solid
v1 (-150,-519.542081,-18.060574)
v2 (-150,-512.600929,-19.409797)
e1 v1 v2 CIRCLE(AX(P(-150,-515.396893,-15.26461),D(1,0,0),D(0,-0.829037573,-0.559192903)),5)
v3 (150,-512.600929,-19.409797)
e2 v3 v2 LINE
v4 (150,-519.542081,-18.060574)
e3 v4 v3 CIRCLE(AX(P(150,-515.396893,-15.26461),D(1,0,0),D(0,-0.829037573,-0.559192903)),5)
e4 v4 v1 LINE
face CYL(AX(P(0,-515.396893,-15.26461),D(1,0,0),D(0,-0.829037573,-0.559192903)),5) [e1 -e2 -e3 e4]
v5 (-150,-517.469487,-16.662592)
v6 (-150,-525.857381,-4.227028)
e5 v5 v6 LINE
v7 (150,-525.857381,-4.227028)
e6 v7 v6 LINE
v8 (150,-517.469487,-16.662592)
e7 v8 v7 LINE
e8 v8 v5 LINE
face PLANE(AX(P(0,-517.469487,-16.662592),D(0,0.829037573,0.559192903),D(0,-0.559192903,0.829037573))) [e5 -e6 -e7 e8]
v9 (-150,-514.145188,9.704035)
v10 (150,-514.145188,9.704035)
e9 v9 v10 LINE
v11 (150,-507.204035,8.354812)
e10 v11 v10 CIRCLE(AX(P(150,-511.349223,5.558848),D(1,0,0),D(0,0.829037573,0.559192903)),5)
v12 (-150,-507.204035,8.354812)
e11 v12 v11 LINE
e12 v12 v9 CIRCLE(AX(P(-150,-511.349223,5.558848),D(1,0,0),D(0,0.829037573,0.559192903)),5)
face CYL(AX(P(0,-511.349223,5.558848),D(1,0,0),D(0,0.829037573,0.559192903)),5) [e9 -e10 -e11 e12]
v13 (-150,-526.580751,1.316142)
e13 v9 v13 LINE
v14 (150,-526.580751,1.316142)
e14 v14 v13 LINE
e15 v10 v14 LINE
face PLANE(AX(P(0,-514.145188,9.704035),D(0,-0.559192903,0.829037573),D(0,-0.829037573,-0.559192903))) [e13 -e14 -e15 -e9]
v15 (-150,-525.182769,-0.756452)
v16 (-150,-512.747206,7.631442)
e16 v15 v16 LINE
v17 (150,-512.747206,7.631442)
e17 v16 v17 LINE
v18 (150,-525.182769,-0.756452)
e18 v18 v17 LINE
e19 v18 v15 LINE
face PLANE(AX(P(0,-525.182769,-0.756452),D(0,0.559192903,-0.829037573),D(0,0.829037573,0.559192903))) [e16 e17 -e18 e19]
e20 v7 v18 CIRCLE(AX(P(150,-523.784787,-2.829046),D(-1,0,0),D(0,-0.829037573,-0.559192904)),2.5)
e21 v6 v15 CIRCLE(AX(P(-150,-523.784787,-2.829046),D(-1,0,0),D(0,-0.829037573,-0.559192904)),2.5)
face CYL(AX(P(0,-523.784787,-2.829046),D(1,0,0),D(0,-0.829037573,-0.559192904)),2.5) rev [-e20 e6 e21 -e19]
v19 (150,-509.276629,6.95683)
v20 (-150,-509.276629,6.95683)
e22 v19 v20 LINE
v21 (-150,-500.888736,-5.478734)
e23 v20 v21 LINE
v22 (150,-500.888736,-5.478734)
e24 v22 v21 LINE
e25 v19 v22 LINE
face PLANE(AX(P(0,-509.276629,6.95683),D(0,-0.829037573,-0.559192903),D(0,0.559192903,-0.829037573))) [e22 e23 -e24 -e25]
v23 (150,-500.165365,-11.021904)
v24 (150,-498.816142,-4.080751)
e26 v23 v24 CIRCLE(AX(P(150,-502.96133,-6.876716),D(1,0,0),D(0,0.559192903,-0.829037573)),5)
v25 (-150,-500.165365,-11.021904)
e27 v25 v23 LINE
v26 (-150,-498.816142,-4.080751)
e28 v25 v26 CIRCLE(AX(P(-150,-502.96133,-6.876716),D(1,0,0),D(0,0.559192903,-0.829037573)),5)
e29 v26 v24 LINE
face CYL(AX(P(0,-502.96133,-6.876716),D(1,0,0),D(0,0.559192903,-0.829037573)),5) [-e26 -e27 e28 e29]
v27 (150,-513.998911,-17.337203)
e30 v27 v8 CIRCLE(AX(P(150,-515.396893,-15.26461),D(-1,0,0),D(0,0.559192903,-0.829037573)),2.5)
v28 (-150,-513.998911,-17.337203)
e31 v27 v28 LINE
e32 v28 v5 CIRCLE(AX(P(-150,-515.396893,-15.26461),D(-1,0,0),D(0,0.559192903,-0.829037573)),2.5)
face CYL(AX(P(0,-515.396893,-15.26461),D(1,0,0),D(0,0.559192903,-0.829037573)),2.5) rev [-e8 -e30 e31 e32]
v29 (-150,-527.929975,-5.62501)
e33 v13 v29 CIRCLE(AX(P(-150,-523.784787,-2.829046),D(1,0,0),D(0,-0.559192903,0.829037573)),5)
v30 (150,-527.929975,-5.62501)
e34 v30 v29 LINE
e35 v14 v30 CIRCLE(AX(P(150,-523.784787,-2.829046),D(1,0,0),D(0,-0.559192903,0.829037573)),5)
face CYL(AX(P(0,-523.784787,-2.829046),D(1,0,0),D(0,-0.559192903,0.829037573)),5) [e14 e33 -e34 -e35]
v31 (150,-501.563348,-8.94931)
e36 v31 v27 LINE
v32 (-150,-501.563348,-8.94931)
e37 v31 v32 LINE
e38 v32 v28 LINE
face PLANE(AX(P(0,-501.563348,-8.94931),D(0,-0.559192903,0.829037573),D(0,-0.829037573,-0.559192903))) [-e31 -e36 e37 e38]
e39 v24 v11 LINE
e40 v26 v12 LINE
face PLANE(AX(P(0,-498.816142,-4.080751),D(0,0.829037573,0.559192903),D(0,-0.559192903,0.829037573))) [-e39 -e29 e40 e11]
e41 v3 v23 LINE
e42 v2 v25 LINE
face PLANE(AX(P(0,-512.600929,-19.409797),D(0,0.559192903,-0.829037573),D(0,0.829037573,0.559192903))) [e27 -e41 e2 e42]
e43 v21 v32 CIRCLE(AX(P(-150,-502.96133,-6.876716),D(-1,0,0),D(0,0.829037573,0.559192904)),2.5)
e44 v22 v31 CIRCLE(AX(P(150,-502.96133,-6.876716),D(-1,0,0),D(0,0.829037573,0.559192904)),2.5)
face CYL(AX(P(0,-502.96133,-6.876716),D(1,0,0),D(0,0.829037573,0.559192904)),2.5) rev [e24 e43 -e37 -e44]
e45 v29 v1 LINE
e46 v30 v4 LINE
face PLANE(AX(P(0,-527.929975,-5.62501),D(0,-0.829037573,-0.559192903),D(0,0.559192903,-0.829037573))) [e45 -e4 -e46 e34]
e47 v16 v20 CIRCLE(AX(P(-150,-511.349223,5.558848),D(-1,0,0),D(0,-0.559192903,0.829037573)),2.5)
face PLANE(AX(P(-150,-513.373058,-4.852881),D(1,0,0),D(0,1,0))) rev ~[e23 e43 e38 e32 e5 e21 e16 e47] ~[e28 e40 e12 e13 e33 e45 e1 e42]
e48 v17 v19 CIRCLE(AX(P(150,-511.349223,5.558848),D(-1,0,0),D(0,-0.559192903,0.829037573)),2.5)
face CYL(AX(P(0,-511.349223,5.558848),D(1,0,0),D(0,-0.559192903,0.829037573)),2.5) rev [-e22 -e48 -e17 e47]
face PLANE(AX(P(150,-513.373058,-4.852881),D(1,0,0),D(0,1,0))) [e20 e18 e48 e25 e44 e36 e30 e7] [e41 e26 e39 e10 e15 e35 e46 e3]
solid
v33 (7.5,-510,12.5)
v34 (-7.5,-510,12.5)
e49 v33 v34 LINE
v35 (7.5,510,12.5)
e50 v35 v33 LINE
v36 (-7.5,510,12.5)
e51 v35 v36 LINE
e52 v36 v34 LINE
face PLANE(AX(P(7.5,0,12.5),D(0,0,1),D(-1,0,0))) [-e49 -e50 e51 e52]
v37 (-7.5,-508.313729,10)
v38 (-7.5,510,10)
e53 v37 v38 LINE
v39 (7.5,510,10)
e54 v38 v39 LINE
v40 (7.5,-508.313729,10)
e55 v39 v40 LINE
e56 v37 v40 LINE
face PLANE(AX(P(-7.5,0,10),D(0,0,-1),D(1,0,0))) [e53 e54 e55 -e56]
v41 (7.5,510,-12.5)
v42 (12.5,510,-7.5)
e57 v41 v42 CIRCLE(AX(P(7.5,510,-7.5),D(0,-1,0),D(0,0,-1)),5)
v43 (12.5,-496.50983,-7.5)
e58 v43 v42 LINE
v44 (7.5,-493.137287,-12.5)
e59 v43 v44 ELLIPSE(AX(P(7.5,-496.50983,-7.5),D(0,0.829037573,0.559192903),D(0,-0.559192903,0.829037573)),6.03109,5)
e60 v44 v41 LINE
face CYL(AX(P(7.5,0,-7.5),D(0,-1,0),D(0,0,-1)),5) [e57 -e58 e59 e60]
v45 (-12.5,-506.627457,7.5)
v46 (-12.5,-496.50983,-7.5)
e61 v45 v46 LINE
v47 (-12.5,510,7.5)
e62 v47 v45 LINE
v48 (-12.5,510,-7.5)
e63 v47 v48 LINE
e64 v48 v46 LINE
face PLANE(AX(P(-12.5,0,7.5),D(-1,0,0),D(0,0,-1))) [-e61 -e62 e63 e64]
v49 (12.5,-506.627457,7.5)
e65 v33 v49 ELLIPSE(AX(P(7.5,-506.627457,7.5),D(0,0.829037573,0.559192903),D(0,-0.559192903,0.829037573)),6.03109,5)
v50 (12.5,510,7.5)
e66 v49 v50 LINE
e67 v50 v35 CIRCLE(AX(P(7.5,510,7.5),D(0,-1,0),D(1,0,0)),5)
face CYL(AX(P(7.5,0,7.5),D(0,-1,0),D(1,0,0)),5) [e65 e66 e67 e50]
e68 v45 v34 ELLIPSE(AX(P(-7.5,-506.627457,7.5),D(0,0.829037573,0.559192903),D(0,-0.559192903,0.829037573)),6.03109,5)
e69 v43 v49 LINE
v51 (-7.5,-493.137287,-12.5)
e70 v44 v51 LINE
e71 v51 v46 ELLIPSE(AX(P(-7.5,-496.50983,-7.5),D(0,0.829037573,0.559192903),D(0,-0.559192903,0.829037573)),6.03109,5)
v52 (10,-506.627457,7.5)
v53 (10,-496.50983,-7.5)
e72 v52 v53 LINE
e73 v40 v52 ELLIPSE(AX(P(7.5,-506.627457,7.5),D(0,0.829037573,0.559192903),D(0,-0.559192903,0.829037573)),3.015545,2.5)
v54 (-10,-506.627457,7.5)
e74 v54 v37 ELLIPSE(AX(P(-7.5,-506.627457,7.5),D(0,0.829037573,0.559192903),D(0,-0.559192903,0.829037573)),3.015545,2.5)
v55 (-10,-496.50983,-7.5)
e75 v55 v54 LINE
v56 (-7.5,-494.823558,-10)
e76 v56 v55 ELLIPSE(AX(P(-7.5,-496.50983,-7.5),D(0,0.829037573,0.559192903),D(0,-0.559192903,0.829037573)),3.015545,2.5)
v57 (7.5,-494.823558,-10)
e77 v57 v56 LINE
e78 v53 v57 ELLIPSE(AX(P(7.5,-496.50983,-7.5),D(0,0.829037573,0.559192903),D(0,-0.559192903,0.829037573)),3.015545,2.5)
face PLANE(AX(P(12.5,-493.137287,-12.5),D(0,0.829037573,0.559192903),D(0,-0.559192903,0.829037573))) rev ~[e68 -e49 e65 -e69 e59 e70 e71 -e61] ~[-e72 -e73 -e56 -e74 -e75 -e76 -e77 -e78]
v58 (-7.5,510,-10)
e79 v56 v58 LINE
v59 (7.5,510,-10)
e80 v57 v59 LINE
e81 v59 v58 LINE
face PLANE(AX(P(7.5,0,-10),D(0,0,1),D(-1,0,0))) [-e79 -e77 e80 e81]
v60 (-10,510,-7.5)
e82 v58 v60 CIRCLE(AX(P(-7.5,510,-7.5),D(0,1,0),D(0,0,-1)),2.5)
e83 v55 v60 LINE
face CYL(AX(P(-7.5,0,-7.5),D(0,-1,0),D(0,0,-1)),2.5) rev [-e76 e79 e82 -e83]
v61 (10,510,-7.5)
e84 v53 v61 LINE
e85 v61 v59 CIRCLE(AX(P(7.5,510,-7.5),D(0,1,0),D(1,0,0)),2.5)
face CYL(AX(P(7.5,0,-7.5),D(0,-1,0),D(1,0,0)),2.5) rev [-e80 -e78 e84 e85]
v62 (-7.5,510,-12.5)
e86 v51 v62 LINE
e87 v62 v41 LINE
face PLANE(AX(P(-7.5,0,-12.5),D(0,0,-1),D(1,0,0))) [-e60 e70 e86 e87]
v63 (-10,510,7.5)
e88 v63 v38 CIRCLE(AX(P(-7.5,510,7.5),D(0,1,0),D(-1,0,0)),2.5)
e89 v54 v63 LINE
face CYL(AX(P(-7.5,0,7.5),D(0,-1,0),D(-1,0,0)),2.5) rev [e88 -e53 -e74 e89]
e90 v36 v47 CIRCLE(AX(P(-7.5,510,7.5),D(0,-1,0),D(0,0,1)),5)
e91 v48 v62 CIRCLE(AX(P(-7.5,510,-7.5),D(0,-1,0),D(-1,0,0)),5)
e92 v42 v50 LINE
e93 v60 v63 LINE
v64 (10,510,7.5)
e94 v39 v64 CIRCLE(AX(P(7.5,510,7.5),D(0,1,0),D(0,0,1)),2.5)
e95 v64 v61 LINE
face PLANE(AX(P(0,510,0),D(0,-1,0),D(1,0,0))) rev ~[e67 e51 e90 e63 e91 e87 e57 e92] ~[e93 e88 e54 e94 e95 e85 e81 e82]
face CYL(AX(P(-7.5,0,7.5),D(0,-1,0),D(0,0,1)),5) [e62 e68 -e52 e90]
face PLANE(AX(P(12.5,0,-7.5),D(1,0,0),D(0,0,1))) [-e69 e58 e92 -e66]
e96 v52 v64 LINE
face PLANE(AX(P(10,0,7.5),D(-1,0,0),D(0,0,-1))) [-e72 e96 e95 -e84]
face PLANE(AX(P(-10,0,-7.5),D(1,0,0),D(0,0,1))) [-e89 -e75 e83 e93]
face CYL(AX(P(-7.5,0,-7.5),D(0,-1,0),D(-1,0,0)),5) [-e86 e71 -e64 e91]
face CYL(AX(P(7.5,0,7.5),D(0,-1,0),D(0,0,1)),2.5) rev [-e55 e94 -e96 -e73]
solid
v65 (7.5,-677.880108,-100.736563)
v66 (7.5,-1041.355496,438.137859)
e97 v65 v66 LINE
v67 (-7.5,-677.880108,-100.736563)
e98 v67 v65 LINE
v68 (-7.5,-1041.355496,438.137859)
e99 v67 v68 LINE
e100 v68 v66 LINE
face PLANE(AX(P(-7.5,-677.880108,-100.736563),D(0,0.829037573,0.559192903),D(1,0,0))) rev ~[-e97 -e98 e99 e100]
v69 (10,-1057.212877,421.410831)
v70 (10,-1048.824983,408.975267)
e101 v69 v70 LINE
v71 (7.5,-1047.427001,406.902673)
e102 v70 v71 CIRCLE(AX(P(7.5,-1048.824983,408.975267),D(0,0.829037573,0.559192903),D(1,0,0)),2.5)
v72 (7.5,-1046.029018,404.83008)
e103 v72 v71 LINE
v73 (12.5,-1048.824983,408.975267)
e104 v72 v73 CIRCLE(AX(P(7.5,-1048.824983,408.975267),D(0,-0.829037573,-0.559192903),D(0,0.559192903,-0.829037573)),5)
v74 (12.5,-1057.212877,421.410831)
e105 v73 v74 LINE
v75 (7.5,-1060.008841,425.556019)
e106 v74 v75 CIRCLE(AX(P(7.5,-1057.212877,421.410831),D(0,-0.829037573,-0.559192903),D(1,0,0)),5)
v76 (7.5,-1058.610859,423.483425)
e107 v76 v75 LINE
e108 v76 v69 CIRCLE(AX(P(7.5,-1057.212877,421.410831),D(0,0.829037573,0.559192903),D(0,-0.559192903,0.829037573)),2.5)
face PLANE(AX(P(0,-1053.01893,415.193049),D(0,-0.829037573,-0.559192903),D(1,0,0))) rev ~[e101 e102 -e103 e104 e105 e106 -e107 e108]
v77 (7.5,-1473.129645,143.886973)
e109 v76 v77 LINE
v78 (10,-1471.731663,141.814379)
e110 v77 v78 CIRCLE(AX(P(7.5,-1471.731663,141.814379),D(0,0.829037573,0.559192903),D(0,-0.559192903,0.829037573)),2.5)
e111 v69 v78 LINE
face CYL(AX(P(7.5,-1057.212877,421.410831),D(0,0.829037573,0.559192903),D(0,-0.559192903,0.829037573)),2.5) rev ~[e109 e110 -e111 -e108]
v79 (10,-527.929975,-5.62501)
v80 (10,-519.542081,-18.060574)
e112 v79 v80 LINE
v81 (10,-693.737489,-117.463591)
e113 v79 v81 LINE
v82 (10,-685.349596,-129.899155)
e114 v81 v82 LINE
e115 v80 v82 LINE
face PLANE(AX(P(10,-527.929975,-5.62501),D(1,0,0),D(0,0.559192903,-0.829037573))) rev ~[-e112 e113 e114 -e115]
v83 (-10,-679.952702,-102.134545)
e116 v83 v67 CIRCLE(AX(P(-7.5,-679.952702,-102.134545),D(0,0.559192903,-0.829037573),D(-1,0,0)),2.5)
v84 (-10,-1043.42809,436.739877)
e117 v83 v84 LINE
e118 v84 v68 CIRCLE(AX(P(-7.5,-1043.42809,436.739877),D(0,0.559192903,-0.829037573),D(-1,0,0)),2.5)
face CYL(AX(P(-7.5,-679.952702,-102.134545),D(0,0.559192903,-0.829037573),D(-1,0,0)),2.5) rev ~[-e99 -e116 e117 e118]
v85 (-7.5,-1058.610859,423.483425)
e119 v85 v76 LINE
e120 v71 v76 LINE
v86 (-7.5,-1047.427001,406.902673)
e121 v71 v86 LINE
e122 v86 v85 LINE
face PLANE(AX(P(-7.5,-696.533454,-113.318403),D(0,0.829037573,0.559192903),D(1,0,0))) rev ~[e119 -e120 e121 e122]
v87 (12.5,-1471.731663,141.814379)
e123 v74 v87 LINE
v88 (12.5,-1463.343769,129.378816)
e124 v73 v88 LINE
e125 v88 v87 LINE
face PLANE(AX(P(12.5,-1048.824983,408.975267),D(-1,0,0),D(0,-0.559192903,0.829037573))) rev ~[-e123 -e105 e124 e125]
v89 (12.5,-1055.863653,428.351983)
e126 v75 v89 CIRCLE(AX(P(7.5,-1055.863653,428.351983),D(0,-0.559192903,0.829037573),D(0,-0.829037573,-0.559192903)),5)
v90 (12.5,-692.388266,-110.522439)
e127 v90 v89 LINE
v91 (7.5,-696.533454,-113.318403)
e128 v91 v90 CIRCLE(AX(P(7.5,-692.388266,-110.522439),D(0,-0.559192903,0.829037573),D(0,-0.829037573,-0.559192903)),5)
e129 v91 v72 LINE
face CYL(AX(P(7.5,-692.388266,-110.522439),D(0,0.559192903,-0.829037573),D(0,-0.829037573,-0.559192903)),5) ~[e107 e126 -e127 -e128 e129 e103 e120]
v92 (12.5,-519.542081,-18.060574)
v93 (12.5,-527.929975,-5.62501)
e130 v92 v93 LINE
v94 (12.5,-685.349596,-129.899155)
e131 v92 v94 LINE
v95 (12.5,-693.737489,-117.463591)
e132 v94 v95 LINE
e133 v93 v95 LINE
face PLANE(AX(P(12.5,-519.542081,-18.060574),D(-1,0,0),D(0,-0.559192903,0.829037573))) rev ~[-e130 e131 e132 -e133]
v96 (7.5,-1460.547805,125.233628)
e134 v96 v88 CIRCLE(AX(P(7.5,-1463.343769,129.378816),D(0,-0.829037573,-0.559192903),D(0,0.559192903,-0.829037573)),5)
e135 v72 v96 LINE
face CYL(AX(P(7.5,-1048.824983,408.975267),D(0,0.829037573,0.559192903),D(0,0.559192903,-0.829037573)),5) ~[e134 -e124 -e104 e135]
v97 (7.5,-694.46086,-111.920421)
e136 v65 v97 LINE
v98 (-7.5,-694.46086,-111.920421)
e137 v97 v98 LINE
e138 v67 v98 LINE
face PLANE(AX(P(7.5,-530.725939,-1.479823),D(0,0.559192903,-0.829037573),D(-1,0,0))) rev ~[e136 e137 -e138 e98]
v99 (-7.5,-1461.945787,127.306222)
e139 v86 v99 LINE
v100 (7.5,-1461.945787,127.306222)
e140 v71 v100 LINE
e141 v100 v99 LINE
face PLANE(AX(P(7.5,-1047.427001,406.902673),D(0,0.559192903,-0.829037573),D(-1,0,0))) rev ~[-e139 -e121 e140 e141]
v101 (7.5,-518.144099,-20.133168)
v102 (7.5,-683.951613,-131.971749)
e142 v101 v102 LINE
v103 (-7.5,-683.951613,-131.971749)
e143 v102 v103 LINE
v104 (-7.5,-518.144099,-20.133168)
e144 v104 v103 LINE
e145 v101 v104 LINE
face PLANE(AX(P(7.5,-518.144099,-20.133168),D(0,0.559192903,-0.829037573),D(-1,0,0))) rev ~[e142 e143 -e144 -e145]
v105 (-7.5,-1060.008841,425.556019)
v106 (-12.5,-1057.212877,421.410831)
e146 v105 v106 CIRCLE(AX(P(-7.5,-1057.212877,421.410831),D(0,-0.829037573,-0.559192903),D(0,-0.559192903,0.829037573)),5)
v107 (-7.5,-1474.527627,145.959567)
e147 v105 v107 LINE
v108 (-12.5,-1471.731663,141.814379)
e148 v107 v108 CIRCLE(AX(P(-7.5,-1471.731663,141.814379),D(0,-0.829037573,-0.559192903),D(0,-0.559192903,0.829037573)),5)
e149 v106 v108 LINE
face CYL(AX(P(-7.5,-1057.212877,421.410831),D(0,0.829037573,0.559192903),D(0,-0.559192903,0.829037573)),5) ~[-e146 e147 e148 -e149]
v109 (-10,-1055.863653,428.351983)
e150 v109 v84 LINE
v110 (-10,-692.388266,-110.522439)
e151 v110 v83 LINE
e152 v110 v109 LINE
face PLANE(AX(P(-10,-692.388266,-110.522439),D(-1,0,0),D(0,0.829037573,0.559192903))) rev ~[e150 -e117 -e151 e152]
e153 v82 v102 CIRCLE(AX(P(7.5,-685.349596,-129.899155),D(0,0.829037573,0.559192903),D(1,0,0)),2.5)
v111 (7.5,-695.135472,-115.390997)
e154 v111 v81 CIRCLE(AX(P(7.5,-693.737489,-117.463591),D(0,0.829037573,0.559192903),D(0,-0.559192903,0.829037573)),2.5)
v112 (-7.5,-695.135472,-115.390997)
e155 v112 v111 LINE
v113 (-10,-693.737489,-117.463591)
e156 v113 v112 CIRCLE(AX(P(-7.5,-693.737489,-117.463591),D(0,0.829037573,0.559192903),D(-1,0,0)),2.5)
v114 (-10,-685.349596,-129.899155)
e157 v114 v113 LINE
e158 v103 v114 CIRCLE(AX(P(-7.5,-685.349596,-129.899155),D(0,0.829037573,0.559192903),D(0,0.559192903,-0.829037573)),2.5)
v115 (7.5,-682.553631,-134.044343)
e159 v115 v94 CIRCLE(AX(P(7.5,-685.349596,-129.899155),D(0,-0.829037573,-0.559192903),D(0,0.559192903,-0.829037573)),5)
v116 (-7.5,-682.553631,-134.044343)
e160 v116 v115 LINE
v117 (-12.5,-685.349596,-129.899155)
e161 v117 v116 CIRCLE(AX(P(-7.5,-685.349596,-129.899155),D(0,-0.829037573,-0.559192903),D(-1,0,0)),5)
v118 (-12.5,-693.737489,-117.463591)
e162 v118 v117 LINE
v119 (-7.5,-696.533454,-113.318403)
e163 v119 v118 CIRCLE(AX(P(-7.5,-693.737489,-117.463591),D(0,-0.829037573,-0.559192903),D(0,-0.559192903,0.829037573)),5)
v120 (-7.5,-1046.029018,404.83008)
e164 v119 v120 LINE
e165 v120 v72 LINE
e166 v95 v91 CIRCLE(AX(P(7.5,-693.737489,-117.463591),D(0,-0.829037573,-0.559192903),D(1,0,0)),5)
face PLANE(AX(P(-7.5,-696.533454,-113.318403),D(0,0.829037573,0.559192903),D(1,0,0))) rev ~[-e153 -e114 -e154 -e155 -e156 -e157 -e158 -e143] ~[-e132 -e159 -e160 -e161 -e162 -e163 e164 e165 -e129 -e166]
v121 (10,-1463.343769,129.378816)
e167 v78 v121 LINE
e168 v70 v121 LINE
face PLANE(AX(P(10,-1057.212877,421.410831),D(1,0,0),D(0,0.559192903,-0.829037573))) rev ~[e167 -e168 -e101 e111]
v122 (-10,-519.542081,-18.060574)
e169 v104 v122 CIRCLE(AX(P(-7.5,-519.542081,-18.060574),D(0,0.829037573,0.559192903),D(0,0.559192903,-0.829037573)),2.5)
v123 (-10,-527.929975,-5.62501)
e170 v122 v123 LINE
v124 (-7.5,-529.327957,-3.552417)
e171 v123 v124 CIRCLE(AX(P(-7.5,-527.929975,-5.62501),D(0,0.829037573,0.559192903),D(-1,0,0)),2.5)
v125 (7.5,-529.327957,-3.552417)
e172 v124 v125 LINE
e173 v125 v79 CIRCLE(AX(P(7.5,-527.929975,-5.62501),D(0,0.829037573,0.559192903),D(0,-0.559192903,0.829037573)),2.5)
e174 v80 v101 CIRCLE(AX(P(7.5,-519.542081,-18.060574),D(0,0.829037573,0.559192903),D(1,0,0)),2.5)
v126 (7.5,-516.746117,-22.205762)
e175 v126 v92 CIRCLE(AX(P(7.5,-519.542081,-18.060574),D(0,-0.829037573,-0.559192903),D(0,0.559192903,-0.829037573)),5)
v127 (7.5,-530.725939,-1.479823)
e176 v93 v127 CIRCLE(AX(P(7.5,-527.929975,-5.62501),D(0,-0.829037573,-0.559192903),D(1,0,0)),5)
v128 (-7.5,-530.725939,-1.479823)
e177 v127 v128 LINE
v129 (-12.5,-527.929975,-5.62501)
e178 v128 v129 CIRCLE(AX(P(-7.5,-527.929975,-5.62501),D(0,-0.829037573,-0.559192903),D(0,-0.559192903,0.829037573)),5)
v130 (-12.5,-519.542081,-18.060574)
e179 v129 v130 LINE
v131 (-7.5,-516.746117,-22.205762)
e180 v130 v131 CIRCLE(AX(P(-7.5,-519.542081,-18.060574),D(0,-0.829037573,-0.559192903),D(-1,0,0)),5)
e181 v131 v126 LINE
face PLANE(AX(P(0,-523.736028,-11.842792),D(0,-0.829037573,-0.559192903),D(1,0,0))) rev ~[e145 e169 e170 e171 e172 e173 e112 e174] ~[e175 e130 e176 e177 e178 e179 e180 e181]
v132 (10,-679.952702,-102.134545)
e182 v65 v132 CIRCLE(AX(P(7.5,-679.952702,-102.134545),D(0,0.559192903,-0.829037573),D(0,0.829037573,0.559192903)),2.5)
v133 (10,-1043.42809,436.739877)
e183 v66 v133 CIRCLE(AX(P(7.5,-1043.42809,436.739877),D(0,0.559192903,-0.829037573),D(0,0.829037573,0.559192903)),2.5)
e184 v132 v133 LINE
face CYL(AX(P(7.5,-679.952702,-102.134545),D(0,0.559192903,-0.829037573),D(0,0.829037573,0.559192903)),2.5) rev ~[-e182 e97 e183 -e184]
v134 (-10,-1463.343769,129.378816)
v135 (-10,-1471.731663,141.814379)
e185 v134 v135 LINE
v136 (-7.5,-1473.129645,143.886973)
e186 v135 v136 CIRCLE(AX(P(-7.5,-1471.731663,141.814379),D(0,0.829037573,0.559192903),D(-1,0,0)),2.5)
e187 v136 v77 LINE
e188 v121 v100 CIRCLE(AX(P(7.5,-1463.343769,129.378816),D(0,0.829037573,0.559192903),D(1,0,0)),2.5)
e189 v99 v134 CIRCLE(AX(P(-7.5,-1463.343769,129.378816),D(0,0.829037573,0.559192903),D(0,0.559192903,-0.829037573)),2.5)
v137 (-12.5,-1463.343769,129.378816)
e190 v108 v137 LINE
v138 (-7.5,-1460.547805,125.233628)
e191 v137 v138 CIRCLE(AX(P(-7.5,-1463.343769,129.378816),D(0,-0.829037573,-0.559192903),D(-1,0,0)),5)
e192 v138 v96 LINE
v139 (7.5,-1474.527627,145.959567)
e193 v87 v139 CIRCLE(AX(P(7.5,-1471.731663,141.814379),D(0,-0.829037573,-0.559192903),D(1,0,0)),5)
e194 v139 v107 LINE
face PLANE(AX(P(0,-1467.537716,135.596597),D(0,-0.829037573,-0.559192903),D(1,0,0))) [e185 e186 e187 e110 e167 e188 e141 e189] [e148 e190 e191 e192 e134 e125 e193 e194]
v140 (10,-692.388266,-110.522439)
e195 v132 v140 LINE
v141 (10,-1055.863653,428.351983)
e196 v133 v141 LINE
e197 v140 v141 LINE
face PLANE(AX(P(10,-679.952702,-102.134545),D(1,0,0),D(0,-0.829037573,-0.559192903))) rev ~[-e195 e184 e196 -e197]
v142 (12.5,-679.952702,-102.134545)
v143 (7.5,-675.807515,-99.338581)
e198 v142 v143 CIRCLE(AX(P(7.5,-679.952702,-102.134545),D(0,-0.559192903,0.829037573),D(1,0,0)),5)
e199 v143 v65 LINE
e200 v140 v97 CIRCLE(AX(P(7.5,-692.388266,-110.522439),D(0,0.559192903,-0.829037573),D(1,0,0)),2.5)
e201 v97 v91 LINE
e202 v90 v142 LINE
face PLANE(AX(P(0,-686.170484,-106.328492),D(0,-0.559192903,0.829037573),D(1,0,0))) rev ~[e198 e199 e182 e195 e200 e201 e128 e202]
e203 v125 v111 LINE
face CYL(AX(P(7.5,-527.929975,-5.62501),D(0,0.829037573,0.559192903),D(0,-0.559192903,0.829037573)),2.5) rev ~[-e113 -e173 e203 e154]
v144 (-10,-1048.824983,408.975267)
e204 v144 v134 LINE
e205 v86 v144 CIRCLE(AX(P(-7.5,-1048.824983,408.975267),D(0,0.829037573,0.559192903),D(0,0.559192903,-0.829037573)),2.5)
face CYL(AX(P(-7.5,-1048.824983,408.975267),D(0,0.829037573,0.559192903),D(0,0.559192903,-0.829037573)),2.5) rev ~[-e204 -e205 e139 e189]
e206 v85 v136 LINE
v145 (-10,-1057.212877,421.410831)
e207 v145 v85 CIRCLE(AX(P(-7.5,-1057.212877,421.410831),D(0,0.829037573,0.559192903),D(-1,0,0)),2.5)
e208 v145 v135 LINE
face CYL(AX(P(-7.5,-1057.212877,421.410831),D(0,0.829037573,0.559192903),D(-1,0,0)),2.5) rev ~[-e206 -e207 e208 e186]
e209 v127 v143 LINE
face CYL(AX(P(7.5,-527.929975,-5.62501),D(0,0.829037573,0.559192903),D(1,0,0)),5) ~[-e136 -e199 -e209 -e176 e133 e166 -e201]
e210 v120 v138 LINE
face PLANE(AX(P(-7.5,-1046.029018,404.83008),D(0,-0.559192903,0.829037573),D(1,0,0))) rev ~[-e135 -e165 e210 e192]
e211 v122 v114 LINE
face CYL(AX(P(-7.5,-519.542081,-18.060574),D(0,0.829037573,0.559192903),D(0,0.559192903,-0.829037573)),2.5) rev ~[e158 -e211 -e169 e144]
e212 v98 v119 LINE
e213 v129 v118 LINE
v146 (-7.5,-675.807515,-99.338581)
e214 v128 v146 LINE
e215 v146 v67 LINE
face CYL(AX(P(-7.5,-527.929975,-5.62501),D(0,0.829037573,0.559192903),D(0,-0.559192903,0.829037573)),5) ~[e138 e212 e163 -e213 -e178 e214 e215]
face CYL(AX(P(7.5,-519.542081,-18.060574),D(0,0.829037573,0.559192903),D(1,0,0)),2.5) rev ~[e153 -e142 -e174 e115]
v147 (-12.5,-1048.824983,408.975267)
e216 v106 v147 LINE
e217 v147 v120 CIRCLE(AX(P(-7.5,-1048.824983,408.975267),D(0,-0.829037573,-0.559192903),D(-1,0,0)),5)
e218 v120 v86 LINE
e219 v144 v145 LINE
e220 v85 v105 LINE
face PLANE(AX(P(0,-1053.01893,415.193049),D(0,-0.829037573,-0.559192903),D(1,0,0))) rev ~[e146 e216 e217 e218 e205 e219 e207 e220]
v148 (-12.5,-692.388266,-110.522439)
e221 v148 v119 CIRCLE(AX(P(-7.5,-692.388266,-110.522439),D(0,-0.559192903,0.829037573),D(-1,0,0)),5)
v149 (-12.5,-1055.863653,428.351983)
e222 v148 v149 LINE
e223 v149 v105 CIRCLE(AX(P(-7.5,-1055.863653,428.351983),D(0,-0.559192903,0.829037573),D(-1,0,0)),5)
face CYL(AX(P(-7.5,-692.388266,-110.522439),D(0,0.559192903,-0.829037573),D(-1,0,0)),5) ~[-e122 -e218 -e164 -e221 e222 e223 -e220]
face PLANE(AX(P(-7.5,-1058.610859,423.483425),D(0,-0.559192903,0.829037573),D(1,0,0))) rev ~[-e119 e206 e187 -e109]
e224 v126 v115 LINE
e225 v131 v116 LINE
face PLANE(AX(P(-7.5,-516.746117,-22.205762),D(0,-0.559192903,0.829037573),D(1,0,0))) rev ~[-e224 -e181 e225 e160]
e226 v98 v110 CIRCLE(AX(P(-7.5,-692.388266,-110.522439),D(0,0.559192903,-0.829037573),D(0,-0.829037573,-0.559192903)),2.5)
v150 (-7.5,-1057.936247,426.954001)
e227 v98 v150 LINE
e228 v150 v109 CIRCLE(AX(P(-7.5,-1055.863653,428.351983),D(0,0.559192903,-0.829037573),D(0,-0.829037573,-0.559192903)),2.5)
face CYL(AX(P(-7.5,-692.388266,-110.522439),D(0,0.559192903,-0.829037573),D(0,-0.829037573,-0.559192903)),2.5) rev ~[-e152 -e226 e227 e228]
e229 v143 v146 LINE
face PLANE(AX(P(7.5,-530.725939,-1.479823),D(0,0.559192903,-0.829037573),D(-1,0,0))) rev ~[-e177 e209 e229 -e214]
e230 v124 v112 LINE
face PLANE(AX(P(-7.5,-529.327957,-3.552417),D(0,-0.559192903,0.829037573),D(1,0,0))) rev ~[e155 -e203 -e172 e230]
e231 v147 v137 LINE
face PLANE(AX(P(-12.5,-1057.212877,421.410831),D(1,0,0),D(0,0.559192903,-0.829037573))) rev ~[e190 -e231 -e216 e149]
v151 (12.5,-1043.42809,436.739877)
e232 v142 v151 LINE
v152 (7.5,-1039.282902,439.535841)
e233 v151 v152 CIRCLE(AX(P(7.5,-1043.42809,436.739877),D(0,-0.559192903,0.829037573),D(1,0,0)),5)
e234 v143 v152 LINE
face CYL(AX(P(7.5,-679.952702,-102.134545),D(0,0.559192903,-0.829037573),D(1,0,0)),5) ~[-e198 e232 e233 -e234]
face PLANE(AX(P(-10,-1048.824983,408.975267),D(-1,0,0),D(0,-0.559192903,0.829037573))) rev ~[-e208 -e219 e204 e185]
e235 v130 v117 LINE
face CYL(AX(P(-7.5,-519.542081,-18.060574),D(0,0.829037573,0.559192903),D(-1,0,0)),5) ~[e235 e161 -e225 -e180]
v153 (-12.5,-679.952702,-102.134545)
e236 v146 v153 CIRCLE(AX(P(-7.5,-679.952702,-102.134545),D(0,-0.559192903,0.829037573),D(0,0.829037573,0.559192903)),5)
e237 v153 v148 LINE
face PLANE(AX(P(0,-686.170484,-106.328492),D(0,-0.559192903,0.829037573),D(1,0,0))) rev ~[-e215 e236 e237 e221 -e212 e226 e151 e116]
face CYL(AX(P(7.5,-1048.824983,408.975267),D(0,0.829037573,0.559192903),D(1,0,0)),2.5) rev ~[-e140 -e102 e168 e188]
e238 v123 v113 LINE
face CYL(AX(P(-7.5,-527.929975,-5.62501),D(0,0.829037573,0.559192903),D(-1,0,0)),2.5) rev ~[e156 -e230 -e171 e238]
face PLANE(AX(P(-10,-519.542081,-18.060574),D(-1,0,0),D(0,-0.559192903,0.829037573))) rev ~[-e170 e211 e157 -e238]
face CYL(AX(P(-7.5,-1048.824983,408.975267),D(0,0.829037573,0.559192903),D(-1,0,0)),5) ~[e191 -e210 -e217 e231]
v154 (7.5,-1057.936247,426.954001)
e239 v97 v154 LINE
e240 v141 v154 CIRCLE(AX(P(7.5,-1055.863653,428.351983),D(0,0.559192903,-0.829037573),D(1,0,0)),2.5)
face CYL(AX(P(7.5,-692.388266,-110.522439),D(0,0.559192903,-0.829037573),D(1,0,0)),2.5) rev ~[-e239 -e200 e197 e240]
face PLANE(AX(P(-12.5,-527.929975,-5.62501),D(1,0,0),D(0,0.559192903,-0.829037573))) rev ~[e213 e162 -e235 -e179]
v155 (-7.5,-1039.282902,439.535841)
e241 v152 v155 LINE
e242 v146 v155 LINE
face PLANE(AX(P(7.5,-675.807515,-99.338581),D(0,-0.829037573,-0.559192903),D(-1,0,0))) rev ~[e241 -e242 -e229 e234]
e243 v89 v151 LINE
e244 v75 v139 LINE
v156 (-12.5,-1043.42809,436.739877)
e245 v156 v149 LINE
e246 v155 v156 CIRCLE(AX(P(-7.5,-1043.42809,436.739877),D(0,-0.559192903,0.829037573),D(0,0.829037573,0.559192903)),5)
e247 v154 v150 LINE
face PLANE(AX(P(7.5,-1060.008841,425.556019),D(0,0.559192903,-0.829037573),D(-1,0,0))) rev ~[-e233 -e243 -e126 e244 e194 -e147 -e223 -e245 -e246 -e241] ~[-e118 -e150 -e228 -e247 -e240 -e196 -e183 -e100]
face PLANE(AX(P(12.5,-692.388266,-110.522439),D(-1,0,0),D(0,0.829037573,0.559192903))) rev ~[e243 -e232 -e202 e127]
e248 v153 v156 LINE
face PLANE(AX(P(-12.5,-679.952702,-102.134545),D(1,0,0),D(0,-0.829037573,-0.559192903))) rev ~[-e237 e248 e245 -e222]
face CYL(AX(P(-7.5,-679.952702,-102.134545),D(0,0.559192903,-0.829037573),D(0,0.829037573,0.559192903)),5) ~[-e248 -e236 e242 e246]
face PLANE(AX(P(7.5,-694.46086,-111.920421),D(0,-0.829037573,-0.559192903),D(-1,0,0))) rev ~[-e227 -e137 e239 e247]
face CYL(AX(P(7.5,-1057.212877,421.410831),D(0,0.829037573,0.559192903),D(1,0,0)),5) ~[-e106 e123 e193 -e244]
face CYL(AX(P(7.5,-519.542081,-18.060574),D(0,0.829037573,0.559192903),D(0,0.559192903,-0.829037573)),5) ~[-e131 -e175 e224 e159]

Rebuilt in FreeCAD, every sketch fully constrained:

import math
import FreeCAD as App
import Part
import Sketcher
from FreeCAD import Vector
Q = App.Units.Quantity


def add_polygon(sketch, points):
    """Adds a closed chain of lines whose ends are joined by coincident constraints."""
    first, n = sketch.GeometryCount, len(points)
    for a, b in zip(points, points[1:] + points[:1]):
        sketch.addGeometry(Part.LineSegment(App.Vector(*a, 0), App.Vector(*b, 0)), False)
    for i in range(n):
        sketch.addConstraint(Sketcher.Constraint("Coincident", first + i, 2, first + (i + 1) % n, 1))

doc = App.newDocument("Part")
body = doc.addObject("PartDesign::Body", "Body")

sketch1 = body.newObject("Sketcher::SketchObject", "Sketch")
sketch1.AttachmentSupport = (doc.getObject("XZ_Plane"), [""])
sketch1.MapMode = "FlatFace"
sketch1.addGeometry(Part.ArcOfCircle(Part.Circle(Vector(7.5, 7.5, 0), Vector(0, 0, 1), 5), math.radians(0), math.radians(90)), False)
sketch1.addGeometry(Part.LineSegment(Vector(7.5, 12.5, 0), Vector(-7.5, 12.5, 0)), False)
sketch1.addGeometry(Part.ArcOfCircle(Part.Circle(Vector(-7.5, 7.5, 0), Vector(0, 0, 1), 5), math.radians(90), math.radians(180)), False)
sketch1.addGeometry(Part.LineSegment(Vector(-12.5, 7.5, 0), Vector(-12.5, -7.5, 0)), False)
sketch1.addGeometry(Part.ArcOfCircle(Part.Circle(Vector(-7.5, -7.5, 0), Vector(0, 0, 1), 5), math.radians(180), math.radians(270)), False)
sketch1.addGeometry(Part.LineSegment(Vector(-7.5, -12.5, 0), Vector(7.5, -12.5, 0)), False)
sketch1.addGeometry(Part.ArcOfCircle(Part.Circle(Vector(7.5, -7.5, 0), Vector(0, 0, 1), 5), math.radians(-90), math.radians(0)), False)
sketch1.addGeometry(Part.LineSegment(Vector(12.5, -7.5, 0), Vector(12.5, 7.5, 0)), False)
sketch1.addGeometry(Part.LineSegment(Vector(-7.5, 10, 0), Vector(7.5, 10, 0)), False)
sketch1.addGeometry(Part.ArcOfCircle(Part.Circle(Vector(7.5, 7.5, 0), Vector(0, 0, 1), 2.5), math.radians(0), math.radians(90)), False)
sketch1.addGeometry(Part.LineSegment(Vector(10, 7.5, 0), Vector(10, -7.5, 0)), False)
sketch1.addGeometry(Part.ArcOfCircle(Part.Circle(Vector(7.5, -7.5, 0), Vector(0, 0, 1), 2.5), math.radians(-90), math.radians(0)), False)
sketch1.addGeometry(Part.LineSegment(Vector(7.5, -10, 0), Vector(-7.5, -10, 0)), False)
sketch1.addGeometry(Part.ArcOfCircle(Part.Circle(Vector(-7.5, -7.5, 0), Vector(0, 0, 1), 2.5), math.radians(180), math.radians(270)), False)
sketch1.addGeometry(Part.LineSegment(Vector(-10, -7.5, 0), Vector(-10, 7.5, 0)), False)
sketch1.addGeometry(Part.ArcOfCircle(Part.Circle(Vector(-7.5, 7.5, 0), Vector(0, 0, 1), 2.5), math.radians(90), math.radians(180)), False)
sketch1.addConstraint(Sketcher.Constraint("Tangent", 0, 2, 1, 1))
sketch1.addConstraint(Sketcher.Constraint("Tangent", 1, 2, 2, 1))
sketch1.addConstraint(Sketcher.Constraint("Tangent", 2, 2, 3, 1))
sketch1.addConstraint(Sketcher.Constraint("Tangent", 3, 2, 4, 1))
sketch1.addConstraint(Sketcher.Constraint("Tangent", 4, 2, 5, 1))
sketch1.addConstraint(Sketcher.Constraint("Tangent", 5, 2, 6, 1))
sketch1.addConstraint(Sketcher.Constraint("Tangent", 6, 2, 7, 1))
sketch1.addConstraint(Sketcher.Constraint("Tangent", 7, 2, 0, 1))
sketch1.addConstraint(Sketcher.Constraint("Tangent", 8, 2, 9, 2))
sketch1.addConstraint(Sketcher.Constraint("Tangent", 9, 1, 10, 1))
sketch1.addConstraint(Sketcher.Constraint("Tangent", 10, 2, 11, 2))
sketch1.addConstraint(Sketcher.Constraint("Tangent", 11, 1, 12, 1))
sketch1.addConstraint(Sketcher.Constraint("Tangent", 12, 2, 13, 2))
sketch1.addConstraint(Sketcher.Constraint("Tangent", 13, 1, 14, 1))
sketch1.addConstraint(Sketcher.Constraint("Tangent", 14, 2, 15, 2))
sketch1.addConstraint(Sketcher.Constraint("Tangent", 15, 1, 8, 1))
sketch1.addConstraint(Sketcher.Constraint("Horizontal", 1))
sketch1.addConstraint(Sketcher.Constraint("Vertical", 3))
sketch1.addConstraint(Sketcher.Constraint("Horizontal", 5))
sketch1.addConstraint(Sketcher.Constraint("Vertical", 7))
sketch1.addConstraint(Sketcher.Constraint("Horizontal", 8))
sketch1.addConstraint(Sketcher.Constraint("Vertical", 10))
sketch1.addConstraint(Sketcher.Constraint("Horizontal", 12))
sketch1.addConstraint(Sketcher.Constraint("Vertical", 14))
sketch1.addConstraint(Sketcher.Constraint("Coincident", 9, 3, 0, 3))
sketch1.addConstraint(Sketcher.Constraint("Coincident", 11, 3, 6, 3))
sketch1.addConstraint(Sketcher.Constraint("Coincident", 13, 3, 4, 3))
sketch1.addConstraint(Sketcher.Constraint("Equal", 0, 2))
sketch1.addConstraint(Sketcher.Constraint("Equal", 2, 4))
sketch1.addConstraint(Sketcher.Constraint("Equal", 4, 6))
sketch1.addConstraint(Sketcher.Constraint("Equal", 13, 15))
sketch1.addConstraint(Sketcher.Constraint("Symmetric", 0, 3, 4, 3, -1, 1))
sketch1.addConstraint(Sketcher.Constraint("Equal", 12, 3))
sketch1.addConstraint(Sketcher.Constraint("Radius", 0, 5.0))
sketch1.addConstraint(Sketcher.Constraint("Radius", 9, 2.5))
sketch1.addConstraint(Sketcher.Constraint("DistanceX", 1, 2, 1, 1, 15.0))
pad1 = body.newObject("PartDesign::Pad", "Pad")
pad1.Profile = sketch1
pad1.Length = 1020
pad1.Midplane = True

sketch2 = body.newObject("Sketcher::SketchObject", "Sketch001")
sketch2.AttachmentSupport = (doc.getObject("YZ_Plane"), [""])
sketch2.MapMode = "FlatFace"
sketch2.AttachmentOffset = App.Placement(Vector(0, 0, 12.5), App.Rotation())
add_polygon(sketch2, [(-493, -12), (-510, 12), (-510, -12)])
sketch2.addConstraint(Sketcher.Constraint("Vertical", 1))
sketch2.addConstraint(Sketcher.Constraint("Horizontal", 2))
sketch2.addConstraint(Sketcher.Constraint("DistanceY", 1, 2, 1, 1, 25.0))
sketch2.addConstraint(Sketcher.Constraint("Angle", 0, Q("124 deg")))
sketch2.addConstraint(Sketcher.Constraint("DistanceX", 0, 2, -1, 1, 510.0))
sketch2.addConstraint(Sketcher.Constraint("DistanceY", -1, 1, 0, 2, 12.5))
pocket1 = body.newObject("PartDesign::Pocket", "Pocket")
pocket1.Profile = sketch2
pocket1.Type = "ThroughAll"
body2 = doc.addObject("PartDesign::Body", "Body001")

sketch3 = body2.newObject("Sketcher::SketchObject", "Sketch002")
sketch3.AttachmentSupport = (doc.getObject("YZ_Plane001"), [""])
sketch3.MapMode = "FlatFace"
sketch3.addGeometry(Part.LineSegment(Vector(-512.6, -19.4, 0), Vector(-500.2, -11, 0)), False)
sketch3.addGeometry(Part.ArcOfCircle(Part.Circle(Vector(-503, -6.9, 0), Vector(0, 0, 1), 5), math.radians(-56), math.radians(34)), False)
sketch3.addGeometry(Part.LineSegment(Vector(-498.8, -4.1, 0), Vector(-507.2, 8.4, 0)), False)
sketch3.addGeometry(Part.ArcOfCircle(Part.Circle(Vector(-511.3, 5.6, 0), Vector(0, 0, 1), 5), math.radians(34), math.radians(124)), False)
sketch3.addGeometry(Part.LineSegment(Vector(-514.1, 9.7, 0), Vector(-526.6, 1.3, 0)), False)
sketch3.addGeometry(Part.ArcOfCircle(Part.Circle(Vector(-523.8, -2.8, 0), Vector(0, 0, 1), 5), math.radians(124), math.radians(214)), False)
sketch3.addGeometry(Part.LineSegment(Vector(-527.9, -5.6, 0), Vector(-519.5, -18.1, 0)), False)
sketch3.addGeometry(Part.ArcOfCircle(Part.Circle(Vector(-515.4, -15.3, 0), Vector(0, 0, 1), 5), math.radians(-146), math.radians(-56)), False)
sketch3.addGeometry(Part.LineSegment(Vector(-525.2, -0.8, 0), Vector(-512.7, 7.6, 0)), False)
sketch3.addGeometry(Part.ArcOfCircle(Part.Circle(Vector(-511.3, 5.6, 0), Vector(0, 0, 1), 2.5), math.radians(34), math.radians(124)), False)
sketch3.addGeometry(Part.LineSegment(Vector(-509.3, 7, 0), Vector(-500.9, -5.5, 0)), False)
sketch3.addGeometry(Part.ArcOfCircle(Part.Circle(Vector(-503, -6.9, 0), Vector(0, 0, 1), 2.5), math.radians(-56), math.radians(34)), False)
sketch3.addGeometry(Part.LineSegment(Vector(-501.6, -8.9, 0), Vector(-514, -17.3, 0)), False)
sketch3.addGeometry(Part.ArcOfCircle(Part.Circle(Vector(-515.4, -15.3, 0), Vector(0, 0, 1), 2.5), math.radians(-146), math.radians(-56)), False)
sketch3.addGeometry(Part.LineSegment(Vector(-517.5, -16.7, 0), Vector(-525.9, -4.2, 0)), False)
sketch3.addGeometry(Part.ArcOfCircle(Part.Circle(Vector(-523.8, -2.8, 0), Vector(0, 0, 1), 2.5), math.radians(124), math.radians(214)), False)
sketch3.addConstraint(Sketcher.Constraint("Tangent", 0, 2, 1, 1))
sketch3.addConstraint(Sketcher.Constraint("Tangent", 1, 2, 2, 1))
sketch3.addConstraint(Sketcher.Constraint("Tangent", 2, 2, 3, 1))
sketch3.addConstraint(Sketcher.Constraint("Tangent", 3, 2, 4, 1))
sketch3.addConstraint(Sketcher.Constraint("Tangent", 4, 2, 5, 1))
sketch3.addConstraint(Sketcher.Constraint("Tangent", 5, 2, 6, 1))
sketch3.addConstraint(Sketcher.Constraint("Tangent", 6, 2, 7, 1))
sketch3.addConstraint(Sketcher.Constraint("Tangent", 7, 2, 0, 1))
sketch3.addConstraint(Sketcher.Constraint("Tangent", 8, 2, 9, 2))
sketch3.addConstraint(Sketcher.Constraint("Tangent", 9, 1, 10, 1))
sketch3.addConstraint(Sketcher.Constraint("Tangent", 10, 2, 11, 2))
sketch3.addConstraint(Sketcher.Constraint("Tangent", 11, 1, 12, 1))
sketch3.addConstraint(Sketcher.Constraint("Tangent", 12, 2, 13, 2))
sketch3.addConstraint(Sketcher.Constraint("Tangent", 13, 1, 14, 1))
sketch3.addConstraint(Sketcher.Constraint("Tangent", 14, 2, 15, 2))
sketch3.addConstraint(Sketcher.Constraint("Tangent", 15, 1, 8, 1))
sketch3.addConstraint(Sketcher.Constraint("Coincident", 9, 3, 3, 3))
sketch3.addConstraint(Sketcher.Constraint("Coincident", 11, 3, 1, 3))
sketch3.addConstraint(Sketcher.Constraint("Coincident", 13, 3, 7, 3))
sketch3.addConstraint(Sketcher.Constraint("Coincident", 15, 3, 5, 3))
sketch3.addConstraint(Sketcher.Constraint("Equal", 1, 3))
sketch3.addConstraint(Sketcher.Constraint("Equal", 3, 5))
sketch3.addConstraint(Sketcher.Constraint("Equal", 5, 7))
sketch3.addConstraint(Sketcher.Constraint("Equal", 9, 11))
sketch3.addConstraint(Sketcher.Constraint("Equal", 11, 13))
sketch3.addConstraint(Sketcher.Constraint("Equal", 13, 15))
sketch3.addConstraint(Sketcher.Constraint("Perpendicular", 0, 2))
sketch3.addConstraint(Sketcher.Constraint("Perpendicular", 2, 4))
sketch3.addConstraint(Sketcher.Constraint("Perpendicular", 4, 6))
sketch3.addConstraint(Sketcher.Constraint("Equal", 0, 2))
sketch3.addConstraint(Sketcher.Constraint("Radius", 1, 5.0))
sketch3.addConstraint(Sketcher.Constraint("Radius", 9, 2.5))
sketch3.addConstraint(Sketcher.Constraint("Angle", 0, Q("34 deg")))
sketch3.addConstraint(Sketcher.Constraint("Distance", 0, 15.0))
sketch3.addConstraint(Sketcher.Constraint("DistanceX", 1, 3, -1, 1, 502.96133))
sketch3.addConstraint(Sketcher.Constraint("DistanceY", 7, 3, -1, 1, 15.26461))
pad2 = body2.newObject("PartDesign::Pad", "Pad001")
pad2.Profile = sketch3
pad2.Length = 300
pad2.Midplane = True
body3 = doc.addObject("PartDesign::Body", "Body002")

sketch4 = body3.newObject("Sketcher::SketchObject", "Sketch003")
sketch4.Placement = App.Placement(Vector(0, -365.455722, -246.502997), App.Rotation(Vector(1, 0, 0), Vector(0, -0.559192903, 0.829037573), Vector(0, -0.829037573, -0.559192903), "ZXY"))
sketch4.addGeometry(Part.ArcOfCircle(Part.Circle(Vector(7.5, 290.6, 0), Vector(0, 0, 1), 5), math.radians(0), math.radians(90)), False)
sketch4.addGeometry(Part.LineSegment(Vector(7.5, 295.6, 0), Vector(-7.5, 295.6, 0)), False)
sketch4.addGeometry(Part.ArcOfCircle(Part.Circle(Vector(-7.5, 290.6, 0), Vector(0, 0, 1), 5), math.radians(90), math.radians(180)), False)
sketch4.addGeometry(Part.LineSegment(Vector(-12.5, 290.6, 0), Vector(-12.5, 275.6, 0)), False)
sketch4.addGeometry(Part.ArcOfCircle(Part.Circle(Vector(-7.5, 275.6, 0), Vector(0, 0, 1), 5), math.radians(180), math.radians(270)), False)
sketch4.addGeometry(Part.LineSegment(Vector(-7.5, 270.6, 0), Vector(7.5, 270.6, 0)), False)
sketch4.addGeometry(Part.ArcOfCircle(Part.Circle(Vector(7.5, 275.6, 0), Vector(0, 0, 1), 5), math.radians(-90), math.radians(0)), False)
sketch4.addGeometry(Part.LineSegment(Vector(12.5, 275.6, 0), Vector(12.5, 290.6, 0)), False)
sketch4.addGeometry(Part.ArcOfCircle(Part.Circle(Vector(-7.5, 290.6, 0), Vector(0, 0, 1), 2.5), math.radians(90), math.radians(180)), False)
sketch4.addGeometry(Part.LineSegment(Vector(-7.5, 293.1, 0), Vector(7.5, 293.1, 0)), False)
sketch4.addGeometry(Part.ArcOfCircle(Part.Circle(Vector(7.5, 290.6, 0), Vector(0, 0, 1), 2.5), math.radians(0), math.radians(90)), False)
sketch4.addGeometry(Part.LineSegment(Vector(10, 290.6, 0), Vector(10, 275.6, 0)), False)
sketch4.addGeometry(Part.ArcOfCircle(Part.Circle(Vector(7.5, 275.6, 0), Vector(0, 0, 1), 2.5), math.radians(-90), math.radians(0)), False)
sketch4.addGeometry(Part.LineSegment(Vector(7.5, 273.1, 0), Vector(-7.5, 273.1, 0)), False)
sketch4.addGeometry(Part.ArcOfCircle(Part.Circle(Vector(-7.5, 275.6, 0), Vector(0, 0, 1), 2.5), math.radians(180), math.radians(270)), False)
sketch4.addGeometry(Part.LineSegment(Vector(-10, 275.6, 0), Vector(-10, 290.6, 0)), False)
sketch4.addConstraint(Sketcher.Constraint("Tangent", 0, 2, 1, 1))
sketch4.addConstraint(Sketcher.Constraint("Tangent", 1, 2, 2, 1))
sketch4.addConstraint(Sketcher.Constraint("Tangent", 2, 2, 3, 1))
sketch4.addConstraint(Sketcher.Constraint("Tangent", 3, 2, 4, 1))
sketch4.addConstraint(Sketcher.Constraint("Tangent", 4, 2, 5, 1))
sketch4.addConstraint(Sketcher.Constraint("Tangent", 5, 2, 6, 1))
sketch4.addConstraint(Sketcher.Constraint("Tangent", 6, 2, 7, 1))
sketch4.addConstraint(Sketcher.Constraint("Tangent", 7, 2, 0, 1))
sketch4.addConstraint(Sketcher.Constraint("Tangent", 8, 1, 9, 1))
sketch4.addConstraint(Sketcher.Constraint("Tangent", 9, 2, 10, 2))
sketch4.addConstraint(Sketcher.Constraint("Tangent", 10, 1, 11, 1))
sketch4.addConstraint(Sketcher.Constraint("Tangent", 11, 2, 12, 2))
sketch4.addConstraint(Sketcher.Constraint("Tangent", 12, 1, 13, 1))
sketch4.addConstraint(Sketcher.Constraint("Tangent", 13, 2, 14, 2))
sketch4.addConstraint(Sketcher.Constraint("Tangent", 14, 1, 15, 1))
sketch4.addConstraint(Sketcher.Constraint("Tangent", 15, 2, 8, 2))
sketch4.addConstraint(Sketcher.Constraint("Horizontal", 1))
sketch4.addConstraint(Sketcher.Constraint("Vertical", 3))
sketch4.addConstraint(Sketcher.Constraint("Horizontal", 5))
sketch4.addConstraint(Sketcher.Constraint("Vertical", 7))
sketch4.addConstraint(Sketcher.Constraint("Horizontal", 9))
sketch4.addConstraint(Sketcher.Constraint("Vertical", 11))
sketch4.addConstraint(Sketcher.Constraint("Horizontal", 13))
sketch4.addConstraint(Sketcher.Constraint("Vertical", 15))
sketch4.addConstraint(Sketcher.Constraint("Coincident", 8, 3, 2, 3))
sketch4.addConstraint(Sketcher.Constraint("Coincident", 10, 3, 0, 3))
sketch4.addConstraint(Sketcher.Constraint("Coincident", 12, 3, 6, 3))
sketch4.addConstraint(Sketcher.Constraint("Equal", 0, 2))
sketch4.addConstraint(Sketcher.Constraint("Equal", 2, 4))
sketch4.addConstraint(Sketcher.Constraint("Equal", 4, 6))
sketch4.addConstraint(Sketcher.Constraint("Equal", 12, 14))
sketch4.addConstraint(Sketcher.Constraint("Equal", 13, 3))
sketch4.addConstraint(Sketcher.Constraint("Radius", 0, 5.0))
sketch4.addConstraint(Sketcher.Constraint("Radius", 8, 2.5))
sketch4.addConstraint(Sketcher.Constraint("DistanceX", 1, 2, 1, 1, 15.0))
sketch4.addConstraint(Sketcher.Constraint("DistanceX", -1, 1, 10, 1, 10.0))
sketch4.addConstraint(Sketcher.Constraint("DistanceY", -1, 1, 0, 3, 290.55135))
pad3 = body3.newObject("PartDesign::Pad", "Pad002")
pad3.Profile = sketch4
pad3.Length = 200

sketch5 = body3.newObject("Sketcher::SketchObject", "Sketch004")
sketch5.Placement = App.Placement(Vector(0, -165.270218, 245.023174), App.Rotation(Vector(1, 0, 0), Vector(0, 0.829037573, 0.559192903), Vector(0, -0.559192903, 0.829037573), "ZXY"))
sketch5.addGeometry(Part.LineSegment(Vector(-7.5, -640.8, 0), Vector(7.5, -640.8, 0)), False)
sketch5.addGeometry(Part.ArcOfCircle(Part.Circle(Vector(7.5, -635.8, 0), Vector(0, 0, 1), 5), math.radians(-90), math.radians(0)), False)
sketch5.addGeometry(Part.LineSegment(Vector(12.5, -635.8, 0), Vector(12.5, -620.8, 0)), False)
sketch5.addGeometry(Part.ArcOfCircle(Part.Circle(Vector(7.5, -620.8, 0), Vector(0, 0, 1), 5), math.radians(0), math.radians(90)), False)
sketch5.addGeometry(Part.LineSegment(Vector(7.5, -615.8, 0), Vector(-7.5, -615.8, 0)), False)
sketch5.addGeometry(Part.ArcOfCircle(Part.Circle(Vector(-7.5, -620.8, 0), Vector(0, 0, 1), 5), math.radians(90), math.radians(180)), False)
sketch5.addGeometry(Part.LineSegment(Vector(-12.5, -620.8, 0), Vector(-12.5, -635.8, 0)), False)
sketch5.addGeometry(Part.ArcOfCircle(Part.Circle(Vector(-7.5, -635.8, 0), Vector(0, 0, 1), 5), math.radians(180), math.radians(270)), False)
sketch5.addGeometry(Part.LineSegment(Vector(-7.5, -618.3, 0), Vector(7.5, -618.3, 0)), False)
sketch5.addGeometry(Part.ArcOfCircle(Part.Circle(Vector(7.5, -620.8, 0), Vector(0, 0, 1), 2.5), math.radians(0), math.radians(90)), False)
sketch5.addGeometry(Part.LineSegment(Vector(10, -620.8, 0), Vector(10, -635.8, 0)), False)
sketch5.addGeometry(Part.ArcOfCircle(Part.Circle(Vector(7.5, -635.8, 0), Vector(0, 0, 1), 2.5), math.radians(-90), math.radians(0)), False)
sketch5.addGeometry(Part.LineSegment(Vector(7.5, -638.3, 0), Vector(-7.5, -638.3, 0)), False)
sketch5.addGeometry(Part.ArcOfCircle(Part.Circle(Vector(-7.5, -635.8, 0), Vector(0, 0, 1), 2.5), math.radians(180), math.radians(270)), False)
sketch5.addGeometry(Part.LineSegment(Vector(-10, -635.8, 0), Vector(-10, -620.8, 0)), False)
sketch5.addGeometry(Part.ArcOfCircle(Part.Circle(Vector(-7.5, -620.8, 0), Vector(0, 0, 1), 2.5), math.radians(90), math.radians(180)), False)
sketch5.addConstraint(Sketcher.Constraint("Tangent", 0, 2, 1, 1))
sketch5.addConstraint(Sketcher.Constraint("Tangent", 1, 2, 2, 1))
sketch5.addConstraint(Sketcher.Constraint("Tangent", 2, 2, 3, 1))
sketch5.addConstraint(Sketcher.Constraint("Tangent", 3, 2, 4, 1))
sketch5.addConstraint(Sketcher.Constraint("Tangent", 4, 2, 5, 1))
sketch5.addConstraint(Sketcher.Constraint("Tangent", 5, 2, 6, 1))
sketch5.addConstraint(Sketcher.Constraint("Tangent", 6, 2, 7, 1))
sketch5.addConstraint(Sketcher.Constraint("Tangent", 7, 2, 0, 1))
sketch5.addConstraint(Sketcher.Constraint("Tangent", 8, 2, 9, 2))
sketch5.addConstraint(Sketcher.Constraint("Tangent", 9, 1, 10, 1))
sketch5.addConstraint(Sketcher.Constraint("Tangent", 10, 2, 11, 2))
sketch5.addConstraint(Sketcher.Constraint("Tangent", 11, 1, 12, 1))
sketch5.addConstraint(Sketcher.Constraint("Tangent", 12, 2, 13, 2))
sketch5.addConstraint(Sketcher.Constraint("Tangent", 13, 1, 14, 1))
sketch5.addConstraint(Sketcher.Constraint("Tangent", 14, 2, 15, 2))
sketch5.addConstraint(Sketcher.Constraint("Tangent", 15, 1, 8, 1))
sketch5.addConstraint(Sketcher.Constraint("Horizontal", 0))
sketch5.addConstraint(Sketcher.Constraint("Vertical", 2))
sketch5.addConstraint(Sketcher.Constraint("Horizontal", 4))
sketch5.addConstraint(Sketcher.Constraint("Vertical", 6))
sketch5.addConstraint(Sketcher.Constraint("Horizontal", 8))
sketch5.addConstraint(Sketcher.Constraint("Vertical", 10))
sketch5.addConstraint(Sketcher.Constraint("Horizontal", 12))
sketch5.addConstraint(Sketcher.Constraint("Vertical", 14))
sketch5.addConstraint(Sketcher.Constraint("Coincident", 9, 3, 3, 3))
sketch5.addConstraint(Sketcher.Constraint("Coincident", 11, 3, 1, 3))
sketch5.addConstraint(Sketcher.Constraint("Coincident", 13, 3, 7, 3))
sketch5.addConstraint(Sketcher.Constraint("Equal", 1, 3))
sketch5.addConstraint(Sketcher.Constraint("Equal", 3, 5))
sketch5.addConstraint(Sketcher.Constraint("Equal", 5, 7))
sketch5.addConstraint(Sketcher.Constraint("Equal", 13, 15))
sketch5.addConstraint(Sketcher.Constraint("Equal", 12, 2))
sketch5.addConstraint(Sketcher.Constraint("Radius", 1, 5.0))
sketch5.addConstraint(Sketcher.Constraint("Radius", 9, 2.5))
sketch5.addConstraint(Sketcher.Constraint("DistanceX", 0, 1, 0, 2, 15.0))
sketch5.addConstraint(Sketcher.Constraint("DistanceX", -1, 1, 9, 1, 10.0))
sketch5.addConstraint(Sketcher.Constraint("DistanceY", 1, 3, -1, 1, 635.819251))
pad4 = body3.newObject("PartDesign::Pad", "Pad003")
pad4.Profile = sketch5
pad4.Length = 650

sketch6 = body3.newObject("Sketcher::SketchObject", "Sketch005")
sketch6.Placement = App.Placement(Vector(0, -531.263236, -358.341577), App.Rotation(Vector(1, 0, 0), Vector(0, -0.559192903, 0.829037573), Vector(0, -0.829037573, -0.559192903), "ZXY"))
sketch6.addGeometry(Part.ArcOfCircle(Part.Circle(Vector(7.5, 940.6, 0), Vector(0, 0, 1), 5), math.radians(0), math.radians(90)), False)
sketch6.addGeometry(Part.LineSegment(Vector(7.5, 945.6, 0), Vector(-7.5, 945.6, 0)), False)
sketch6.addGeometry(Part.ArcOfCircle(Part.Circle(Vector(-7.5, 940.6, 0), Vector(0, 0, 1), 5), math.radians(90), math.radians(180)), False)
sketch6.addGeometry(Part.LineSegment(Vector(-12.5, 940.6, 0), Vector(-12.5, 925.6, 0)), False)
sketch6.addGeometry(Part.ArcOfCircle(Part.Circle(Vector(-7.5, 925.6, 0), Vector(0, 0, 1), 5), math.radians(180), math.radians(270)), False)
sketch6.addGeometry(Part.LineSegment(Vector(-7.5, 920.6, 0), Vector(7.5, 920.6, 0)), False)
sketch6.addGeometry(Part.ArcOfCircle(Part.Circle(Vector(7.5, 925.6, 0), Vector(0, 0, 1), 5), math.radians(-90), math.radians(0)), False)
sketch6.addGeometry(Part.LineSegment(Vector(12.5, 925.6, 0), Vector(12.5, 940.6, 0)), False)
sketch6.addGeometry(Part.LineSegment(Vector(-7.5, 943.1, 0), Vector(7.5, 943.1, 0)), False)
sketch6.addGeometry(Part.ArcOfCircle(Part.Circle(Vector(7.5, 940.6, 0), Vector(0, 0, 1), 2.5), math.radians(0), math.radians(90)), False)
sketch6.addGeometry(Part.LineSegment(Vector(10, 940.6, 0), Vector(10, 925.6, 0)), False)
sketch6.addGeometry(Part.ArcOfCircle(Part.Circle(Vector(7.5, 925.6, 0), Vector(0, 0, 1), 2.5), math.radians(-90), math.radians(0)), False)
sketch6.addGeometry(Part.LineSegment(Vector(7.5, 923.1, 0), Vector(-7.5, 923.1, 0)), False)
sketch6.addGeometry(Part.ArcOfCircle(Part.Circle(Vector(-7.5, 925.6, 0), Vector(0, 0, 1), 2.5), math.radians(180), math.radians(270)), False)
sketch6.addGeometry(Part.LineSegment(Vector(-10, 925.6, 0), Vector(-10, 940.6, 0)), False)
sketch6.addGeometry(Part.ArcOfCircle(Part.Circle(Vector(-7.5, 940.6, 0), Vector(0, 0, 1), 2.5), math.radians(90), math.radians(180)), False)
sketch6.addConstraint(Sketcher.Constraint("Tangent", 0, 2, 1, 1))
sketch6.addConstraint(Sketcher.Constraint("Tangent", 1, 2, 2, 1))
sketch6.addConstraint(Sketcher.Constraint("Tangent", 2, 2, 3, 1))
sketch6.addConstraint(Sketcher.Constraint("Tangent", 3, 2, 4, 1))
sketch6.addConstraint(Sketcher.Constraint("Tangent", 4, 2, 5, 1))
sketch6.addConstraint(Sketcher.Constraint("Tangent", 5, 2, 6, 1))
sketch6.addConstraint(Sketcher.Constraint("Tangent", 6, 2, 7, 1))
sketch6.addConstraint(Sketcher.Constraint("Tangent", 7, 2, 0, 1))
sketch6.addConstraint(Sketcher.Constraint("Tangent", 8, 2, 9, 2))
sketch6.addConstraint(Sketcher.Constraint("Tangent", 9, 1, 10, 1))
sketch6.addConstraint(Sketcher.Constraint("Tangent", 10, 2, 11, 2))
sketch6.addConstraint(Sketcher.Constraint("Tangent", 11, 1, 12, 1))
sketch6.addConstraint(Sketcher.Constraint("Tangent", 12, 2, 13, 2))
sketch6.addConstraint(Sketcher.Constraint("Tangent", 13, 1, 14, 1))
sketch6.addConstraint(Sketcher.Constraint("Tangent", 14, 2, 15, 2))
sketch6.addConstraint(Sketcher.Constraint("Tangent", 15, 1, 8, 1))
sketch6.addConstraint(Sketcher.Constraint("Horizontal", 1))
sketch6.addConstraint(Sketcher.Constraint("Vertical", 3))
sketch6.addConstraint(Sketcher.Constraint("Horizontal", 5))
sketch6.addConstraint(Sketcher.Constraint("Vertical", 7))
sketch6.addConstraint(Sketcher.Constraint("Horizontal", 8))
sketch6.addConstraint(Sketcher.Constraint("Vertical", 10))
sketch6.addConstraint(Sketcher.Constraint("Horizontal", 12))
sketch6.addConstraint(Sketcher.Constraint("Vertical", 14))
sketch6.addConstraint(Sketcher.Constraint("Coincident", 9, 3, 0, 3))
sketch6.addConstraint(Sketcher.Constraint("Coincident", 11, 3, 6, 3))
sketch6.addConstraint(Sketcher.Constraint("Coincident", 13, 3, 4, 3))
sketch6.addConstraint(Sketcher.Constraint("Equal", 0, 2))
sketch6.addConstraint(Sketcher.Constraint("Equal", 2, 4))
sketch6.addConstraint(Sketcher.Constraint("Equal", 4, 6))
sketch6.addConstraint(Sketcher.Constraint("Equal", 13, 15))
sketch6.addConstraint(Sketcher.Constraint("Equal", 12, 3))
sketch6.addConstraint(Sketcher.Constraint("Radius", 0, 5.0))
sketch6.addConstraint(Sketcher.Constraint("Radius", 9, 2.5))
sketch6.addConstraint(Sketcher.Constraint("DistanceX", 1, 2, 1, 1, 15.0))
sketch6.addConstraint(Sketcher.Constraint("DistanceX", -1, 1, 9, 1, 10.0))
sketch6.addConstraint(Sketcher.Constraint("DistanceY", -1, 1, 0, 3, 940.551351))
pad5 = body3.newObject("PartDesign::Pad", "Pad004")
pad5.Profile = sketch6
pad5.Length = 500

doc.recompute()
